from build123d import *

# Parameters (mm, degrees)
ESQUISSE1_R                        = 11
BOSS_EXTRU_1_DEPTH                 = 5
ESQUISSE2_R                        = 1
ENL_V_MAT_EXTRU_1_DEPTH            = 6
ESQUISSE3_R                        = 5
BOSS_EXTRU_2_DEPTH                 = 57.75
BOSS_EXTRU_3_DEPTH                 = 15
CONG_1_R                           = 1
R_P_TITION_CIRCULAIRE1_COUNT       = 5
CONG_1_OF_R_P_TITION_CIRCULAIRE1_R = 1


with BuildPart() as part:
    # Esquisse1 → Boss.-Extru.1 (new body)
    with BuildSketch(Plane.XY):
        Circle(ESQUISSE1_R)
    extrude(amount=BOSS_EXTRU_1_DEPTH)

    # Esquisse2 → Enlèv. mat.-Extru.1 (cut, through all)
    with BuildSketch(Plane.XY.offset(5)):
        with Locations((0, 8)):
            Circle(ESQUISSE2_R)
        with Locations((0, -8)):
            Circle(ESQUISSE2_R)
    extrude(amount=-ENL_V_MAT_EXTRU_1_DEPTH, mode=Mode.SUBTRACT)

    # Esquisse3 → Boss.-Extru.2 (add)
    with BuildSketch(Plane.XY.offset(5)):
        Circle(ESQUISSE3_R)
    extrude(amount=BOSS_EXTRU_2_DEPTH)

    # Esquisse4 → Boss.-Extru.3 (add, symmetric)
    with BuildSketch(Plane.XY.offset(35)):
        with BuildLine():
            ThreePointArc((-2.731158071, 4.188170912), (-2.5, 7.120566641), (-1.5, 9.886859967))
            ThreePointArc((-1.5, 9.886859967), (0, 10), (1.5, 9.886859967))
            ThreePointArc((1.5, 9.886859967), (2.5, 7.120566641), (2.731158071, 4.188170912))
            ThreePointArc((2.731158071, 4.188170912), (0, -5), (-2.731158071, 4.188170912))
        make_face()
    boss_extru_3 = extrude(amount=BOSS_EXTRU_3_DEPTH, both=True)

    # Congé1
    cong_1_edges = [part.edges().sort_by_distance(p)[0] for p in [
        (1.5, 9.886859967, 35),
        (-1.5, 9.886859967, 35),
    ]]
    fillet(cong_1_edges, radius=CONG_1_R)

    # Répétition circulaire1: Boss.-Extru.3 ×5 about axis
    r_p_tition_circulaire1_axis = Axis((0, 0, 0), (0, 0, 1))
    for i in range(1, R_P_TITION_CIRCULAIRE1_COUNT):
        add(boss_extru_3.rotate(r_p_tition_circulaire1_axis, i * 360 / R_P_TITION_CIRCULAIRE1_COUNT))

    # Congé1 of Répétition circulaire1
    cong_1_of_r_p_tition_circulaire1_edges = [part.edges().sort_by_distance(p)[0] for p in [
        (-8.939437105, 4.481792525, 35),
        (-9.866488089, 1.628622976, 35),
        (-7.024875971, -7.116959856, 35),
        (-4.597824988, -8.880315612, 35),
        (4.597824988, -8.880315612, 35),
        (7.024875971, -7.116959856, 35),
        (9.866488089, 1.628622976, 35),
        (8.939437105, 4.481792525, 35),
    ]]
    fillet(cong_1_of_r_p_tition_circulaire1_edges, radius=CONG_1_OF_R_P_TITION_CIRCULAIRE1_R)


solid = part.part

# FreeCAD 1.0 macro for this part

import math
import FreeCAD as App
import Part
import Sketcher

V = App.Vector
Q = App.Units.Quantity


def edges_at(feature, points):
    """Names of the edges that pass closest to the given points."""
    edges = feature.Shape.Edges
    near = lambda p: min(range(len(edges)), key=lambda i: edges[i].distToShape(Part.Vertex(*p))[0])
    return sorted({f"Edge{near(p) + 1}" for p in points})

doc = App.newDocument("Part")
params = doc.addObject("Spreadsheet::Sheet", "Params")
for row, (alias, value) in enumerate([
    ("sketch1_diameter", "22 mm"),
    ("pad1_length", "5 mm"),
    ("sketch2_diameter", "2 mm"),
    ("sketch3_diameter", "10 mm"),
    ("pad2_length", "57.75 mm"),
    ("sketch4_radius", "11 mm"),
    ("sketch4_radius2", "5 mm"),
    ("sketch4_radius3", "10 mm"),
    ("pad3_length", "30 mm"),
    ("fillet_radius", "1 mm"),
    ("fillet2_radius", "1 mm"),
], start=1):
    params.set(f"A{row}", alias)
    params.set(f"B{row}", "=" + value)
    params.setAlias(f"B{row}", alias)

body = doc.addObject("PartDesign::Body", "Body")

# Sketch on XY plane
sketch1 = doc.addObject("Sketcher::SketchObject", "Sketch")
body.addObject(sketch1)
sketch1.AttachmentSupport = (doc.XY_Plane, [""])
sketch1.MapMode = "FlatFace"
sketch1.addGeometry(Part.Circle(V(0, 0, 0), V(0, 0, 1), 11), False)
sketch1.addConstraint(Sketcher.Constraint("Coincident", 0, 3, -1, 1))
sketch1.addConstraint(Sketcher.Constraint("Diameter", 0, Q("22 mm")))
sketch1.setExpression("Constraints[1]", "Params.sketch1_diameter")
pad1 = doc.addObject("PartDesign::Pad", "Pad")
body.addObject(pad1)
pad1.Profile = sketch1
pad1.setExpression("Length", "Params.pad1_length")

# Sketch on XY plane
sketch2 = doc.addObject("Sketcher::SketchObject", "Sketch001")
body.addObject(sketch2)
sketch2.AttachmentSupport = (doc.XY_Plane, [""])
sketch2.MapMode = "FlatFace"
sketch2.AttachmentOffset = App.Placement(V(0, 0, 5), App.Rotation())
sketch2.addGeometry(Part.Circle(V(0, 8, 0), V(0, 0, 1), 1), False)
sketch2.addGeometry(Part.Circle(V(0, -8, 0), V(0, 0, 1), 1), False)
sketch2.addConstraint(Sketcher.Constraint("Equal", 0, 1))
sketch2.addConstraint(Sketcher.Constraint("Symmetric", 0, 3, 1, 3, -1, 1))
sketch2.addConstraint(Sketcher.Constraint("PointOnObject", 0, 3, -2))
sketch2.addConstraint(Sketcher.Constraint("Diameter", 0, Q("2 mm")))
sketch2.addConstraint(Sketcher.Constraint("DistanceY", -1, 1, 0, 3, Q("8 mm")))
sketch2.setExpression("Constraints[3]", "Params.sketch2_diameter")
pocket1 = doc.addObject("PartDesign::Pocket", "Pocket")
body.addObject(pocket1)
pocket1.Profile = sketch2
pocket1.Type = "ThroughAll"

# Sketch on XY plane
sketch3 = doc.addObject("Sketcher::SketchObject", "Sketch002")
body.addObject(sketch3)
sketch3.AttachmentSupport = (doc.XY_Plane, [""])
sketch3.MapMode = "FlatFace"
sketch3.AttachmentOffset = App.Placement(V(0, 0, 5), App.Rotation())
sketch3.addGeometry(Part.Circle(V(0, 0, 0), V(0, 0, 1), 5), False)
sketch3.addConstraint(Sketcher.Constraint("Coincident", 0, 3, -1, 1))
sketch3.addConstraint(Sketcher.Constraint("Diameter", 0, Q("10 mm")))
sketch3.setExpression("Constraints[1]", "Params.sketch3_diameter")
pad2 = doc.addObject("PartDesign::Pad", "Pad001")
body.addObject(pad2)
pad2.Profile = sketch3
pad2.setExpression("Length", "Params.pad2_length")

# Sketch on XY plane
sketch4 = doc.addObject("Sketcher::SketchObject", "Sketch003")
body.addObject(sketch4)
sketch4.AttachmentSupport = (doc.XY_Plane, [""])
sketch4.MapMode = "FlatFace"
sketch4.AttachmentOffset = App.Placement(V(0, 0, 35), App.Rotation())
sketch4.addGeometry(Part.ArcOfCircle(Part.Circle(V(8.3, 4.8, 0), V(0, 0, 1), 11), math.radians(152), math.radians(183)), False)
sketch4.addGeometry(Part.ArcOfCircle(Part.Circle(V(0, 0, 0), V(0, 0, 1), 5), math.radians(123), math.radians(417)), False)
sketch4.addGeometry(Part.ArcOfCircle(Part.Circle(V(-8.3, 4.8, 0), V(0, 0, 1), 11), math.radians(-3), math.radians(28)), False)
sketch4.addGeometry(Part.ArcOfCircle(Part.Circle(V(0, 0, 0), V(0, 0, 1), 10), math.radians(81.37), math.radians(98.63)), False)
sketch4.addConstraint(Sketcher.Constraint("Coincident", 0, 2, 1, 1))
sketch4.addConstraint(Sketcher.Constraint("Coincident", 1, 2, 2, 1))
sketch4.addConstraint(Sketcher.Constraint("Coincident", 2, 2, 3, 1))
sketch4.addConstraint(Sketcher.Constraint("Coincident", 3, 2, 0, 1))
sketch4.addConstraint(Sketcher.Constraint("Coincident", 1, 3, -1, 1))
sketch4.addConstraint(Sketcher.Constraint("Coincident", 3, 3, -1, 1))
sketch4.addConstraint(Sketcher.Constraint("Equal", 0, 2))
sketch4.addConstraint(Sketcher.Constraint("Symmetric", 0, 3, 2, 3, -2))
sketch4.addConstraint(Sketcher.Constraint("Radius", 0, Q("11 mm")))
sketch4.addConstraint(Sketcher.Constraint("Radius", 1, Q("5 mm")))
sketch4.addConstraint(Sketcher.Constraint("Radius", 3, Q("10 mm")))
sketch4.addConstraint(Sketcher.Constraint("DistanceX", 3, 2, 2, 2, Q("3 mm")))
sketch4.addConstraint(Sketcher.Constraint("DistanceX", 0, 2, 0, 3, Q("10.9831 mm")))
sketch4.setExpression("Constraints[8]", "Params.sketch4_radius")
sketch4.setExpression("Constraints[9]", "Params.sketch4_radius2")
sketch4.setExpression("Constraints[10]", "Params.sketch4_radius3")
pad3 = doc.addObject("PartDesign::Pad", "Pad002")
body.addObject(pad3)
pad3.Profile = sketch4
pad3.setExpression("Length", "Params.pad3_length")
pad3.Midplane = True
doc.recompute()

fillet = doc.addObject("PartDesign::Fillet", "Fillet")
body.addObject(fillet)
fillet.Base = (pad3, edges_at(pad3, [(1.5, 9.887, 35), (-1.5, 9.887, 35)]))
fillet.setExpression("Radius", "Params.fillet_radius")
doc.recompute()

polarpattern = doc.addObject("PartDesign::PolarPattern", "PolarPattern")
body.addObject(polarpattern)
polarpattern.Originals = [pad3]
polarpattern.Axis = (doc.Z_Axis, [""])
polarpattern.Angle = 360
polarpattern.Occurrences = 5
body.Tip = polarpattern
doc.recompute()

fillet2 = doc.addObject("PartDesign::Fillet", "Fillet001")
body.addObject(fillet2)
fillet2.Base = (polarpattern, edges_at(polarpattern, [
    (-8.939, 4.482, 35),
    (-9.866, 1.629, 35),
    (-7.025, -7.117, 35),
    (-4.598, -8.88, 35),
    (4.598, -8.88, 35),
    (7.025, -7.117, 35),
    (9.866, 1.629, 35),
    (8.939, 4.482, 35),
]))
fillet2.setExpression("Radius", "Params.fillet2_radius")

doc.recompute()
